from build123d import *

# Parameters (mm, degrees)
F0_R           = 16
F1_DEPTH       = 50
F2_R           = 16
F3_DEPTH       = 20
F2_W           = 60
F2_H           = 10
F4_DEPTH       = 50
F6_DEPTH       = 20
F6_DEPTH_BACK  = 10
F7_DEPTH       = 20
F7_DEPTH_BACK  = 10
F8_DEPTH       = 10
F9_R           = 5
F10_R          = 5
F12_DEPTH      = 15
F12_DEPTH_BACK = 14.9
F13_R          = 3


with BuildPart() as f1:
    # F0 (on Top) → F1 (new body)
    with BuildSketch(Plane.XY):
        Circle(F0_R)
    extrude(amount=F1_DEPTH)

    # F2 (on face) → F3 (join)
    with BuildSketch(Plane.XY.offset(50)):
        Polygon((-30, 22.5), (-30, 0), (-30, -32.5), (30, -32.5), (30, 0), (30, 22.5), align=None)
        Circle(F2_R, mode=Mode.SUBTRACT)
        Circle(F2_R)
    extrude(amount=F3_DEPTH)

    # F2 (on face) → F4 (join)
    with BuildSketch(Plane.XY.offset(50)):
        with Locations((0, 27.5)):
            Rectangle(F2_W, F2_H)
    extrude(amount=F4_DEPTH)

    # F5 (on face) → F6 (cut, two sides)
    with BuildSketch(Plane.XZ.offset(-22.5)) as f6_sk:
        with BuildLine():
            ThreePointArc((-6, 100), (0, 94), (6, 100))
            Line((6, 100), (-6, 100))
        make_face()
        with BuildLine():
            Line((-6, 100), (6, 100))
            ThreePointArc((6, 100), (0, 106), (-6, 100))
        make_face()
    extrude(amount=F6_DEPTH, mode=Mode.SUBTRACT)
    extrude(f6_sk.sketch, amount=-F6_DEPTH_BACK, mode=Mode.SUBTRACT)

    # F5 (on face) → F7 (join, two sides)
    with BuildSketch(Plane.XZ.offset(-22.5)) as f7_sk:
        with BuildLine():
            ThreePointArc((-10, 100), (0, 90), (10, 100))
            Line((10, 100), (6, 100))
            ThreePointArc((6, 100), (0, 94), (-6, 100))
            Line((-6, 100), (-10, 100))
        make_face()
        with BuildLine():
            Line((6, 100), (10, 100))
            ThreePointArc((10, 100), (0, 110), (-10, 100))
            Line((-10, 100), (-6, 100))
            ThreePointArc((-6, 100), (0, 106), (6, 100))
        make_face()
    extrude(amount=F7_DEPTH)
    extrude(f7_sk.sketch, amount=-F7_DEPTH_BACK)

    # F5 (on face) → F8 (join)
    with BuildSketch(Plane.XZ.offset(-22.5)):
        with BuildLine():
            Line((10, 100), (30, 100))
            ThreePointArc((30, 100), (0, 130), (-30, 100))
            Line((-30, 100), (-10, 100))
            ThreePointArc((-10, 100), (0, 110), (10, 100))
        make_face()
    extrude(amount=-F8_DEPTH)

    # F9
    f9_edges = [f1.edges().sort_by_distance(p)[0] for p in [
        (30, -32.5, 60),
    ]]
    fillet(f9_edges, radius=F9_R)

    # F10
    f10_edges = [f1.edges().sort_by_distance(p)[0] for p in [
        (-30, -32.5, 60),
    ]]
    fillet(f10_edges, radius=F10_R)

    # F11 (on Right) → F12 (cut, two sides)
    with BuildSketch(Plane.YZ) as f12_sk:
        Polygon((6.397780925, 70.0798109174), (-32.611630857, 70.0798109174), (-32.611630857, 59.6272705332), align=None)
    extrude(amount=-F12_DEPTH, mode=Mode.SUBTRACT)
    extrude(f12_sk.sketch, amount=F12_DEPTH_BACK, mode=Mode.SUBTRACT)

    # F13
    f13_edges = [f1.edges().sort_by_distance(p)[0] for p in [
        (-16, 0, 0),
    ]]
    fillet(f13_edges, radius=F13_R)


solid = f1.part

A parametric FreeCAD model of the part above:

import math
import FreeCAD as App
import Part
import Sketcher
Q = App.Units.Quantity


def edges_at(feature, points):
    """Names of the edges that pass closest to the given points."""
    edges = feature.Shape.Edges
    near = lambda p: min(range(len(edges)), key=lambda i: edges[i].distToShape(Part.Vertex(*p))[0])
    return sorted({f"Edge{near(p) + 1}" for p in points})

doc = App.newDocument("Part")
params = doc.addObject("Spreadsheet::Sheet", "Params")
for row, (alias, value) in enumerate([
    ("sketch1_diameter", "32 mm"),
    ("pad1_length", "50 mm"),
    ("sketch2_width", "60 mm"),
    ("sketch2_height", "55 mm"),
    ("pad2_length", "20 mm"),
    ("sketch3_width", "60 mm"),
    ("sketch3_height", "10 mm"),
    ("pad3_length", "50 mm"),
    ("sketch4_diameter", "12 mm"),
    ("sketch5_diameter", "20 mm"),
    ("sketch5_diameter2", "12 mm"),
    ("pad4_length", "20 mm"),
    ("pad4_length2", "10 mm"),
    ("sketch6_radius", "30 mm"),
    ("sketch6_radius2", "10 mm"),
    ("pad5_length", "10 mm"),
    ("fillet_radius", "5 mm"),
    ("fillet2_radius", "5 mm"),
    ("pocket2_length", "15 mm"),
    ("pocket2_length2", "14.9 mm"),
    ("fillet3_radius", "3 mm"),
], start=1):
    params.set(f"A{row}", alias)
    params.set(f"B{row}", "=" + value)
    params.setAlias(f"B{row}", alias)

body = doc.addObject("PartDesign::Body", "Body")

# Sketch on XY plane
sketch1 = body.newObject("Sketcher::SketchObject", "Sketch")
sketch1.AttachmentSupport = (doc.getObject("XY_Plane"), [""])
sketch1.MapMode = "FlatFace"
sketch1.addGeometry(Part.Circle(App.Vector(0, 0, 0), App.Vector(0, 0, 1), 16), False)
sketch1.addConstraint([
    Sketcher.Constraint("Coincident", 0, 3, -1, 1),
    Sketcher.Constraint("Diameter", 0, 32.0),
])
sketch1.setExpression("Constraints[1]", "Params.sketch1_diameter")
pad1 = body.newObject("PartDesign::Pad", "Pad")
pad1.Profile = sketch1
pad1.setExpression("Length", "Params.pad1_length")

# Sketch on XY plane
sketch2 = body.newObject("Sketcher::SketchObject", "Sketch001")
sketch2.AttachmentSupport = (doc.getObject("XY_Plane"), [""])
sketch2.MapMode = "FlatFace"
sketch2.AttachmentOffset = App.Placement(App.Vector(0, 0, 50), App.Rotation())
sketch2.addGeometry([
    Part.LineSegment(App.Vector(-30, 22, 0), App.Vector(-30, -32, 0)),
    Part.LineSegment(App.Vector(-30, -32, 0), App.Vector(30, -32, 0)),
    Part.LineSegment(App.Vector(30, -32, 0), App.Vector(30, 22, 0)),
    Part.LineSegment(App.Vector(30, 22, 0), App.Vector(-30, 22, 0)),
], False)
sketch2.addConstraint([
    Sketcher.Constraint("Coincident", 0, 2, 1, 1),
    Sketcher.Constraint("Coincident", 1, 2, 2, 1),
    Sketcher.Constraint("Coincident", 2, 2, 3, 1),
    Sketcher.Constraint("Coincident", 3, 2, 0, 1),
    Sketcher.Constraint("Vertical", 0),
    Sketcher.Constraint("Horizontal", 1),
    Sketcher.Constraint("Vertical", 2),
    Sketcher.Constraint("Horizontal", 3),
    Sketcher.Constraint("DistanceX", 1, 1, 1, 2, 60.0),
    Sketcher.Constraint("DistanceY", 0, 2, 0, 1, 55.0),
    Sketcher.Constraint("DistanceX", 0, 2, -1, 1, 30.0),
    Sketcher.Constraint("DistanceY", 0, 2, -1, 1, 32.5),
])
sketch2.setExpression("Constraints[8]", "Params.sketch2_width")
sketch2.setExpression("Constraints[9]", "Params.sketch2_height")
pad2 = body.newObject("PartDesign::Pad", "Pad001")
pad2.Profile = sketch2
pad2.setExpression("Length", "Params.pad2_length")

# Sketch on XY plane
sketch3 = body.newObject("Sketcher::SketchObject", "Sketch002")
sketch3.AttachmentSupport = (doc.getObject("XY_Plane"), [""])
sketch3.MapMode = "FlatFace"
sketch3.AttachmentOffset = App.Placement(App.Vector(0, 0, 50), App.Rotation())
sketch3.addGeometry([
    Part.LineSegment(App.Vector(-30, 32, 0), App.Vector(-30, 22, 0)),
    Part.LineSegment(App.Vector(-30, 22, 0), App.Vector(30, 22, 0)),
    Part.LineSegment(App.Vector(30, 22, 0), App.Vector(30, 32, 0)),
    Part.LineSegment(App.Vector(30, 32, 0), App.Vector(-30, 32, 0)),
], False)
sketch3.addConstraint([
    Sketcher.Constraint("Coincident", 0, 2, 1, 1),
    Sketcher.Constraint("Coincident", 1, 2, 2, 1),
    Sketcher.Constraint("Coincident", 2, 2, 3, 1),
    Sketcher.Constraint("Coincident", 3, 2, 0, 1),
    Sketcher.Constraint("Vertical", 0),
    Sketcher.Constraint("Horizontal", 1),
    Sketcher.Constraint("Vertical", 2),
    Sketcher.Constraint("Horizontal", 3),
    Sketcher.Constraint("DistanceX", 1, 1, 1, 2, 60.0),
    Sketcher.Constraint("DistanceY", 0, 2, 0, 1, 10.0),
    Sketcher.Constraint("DistanceX", 0, 2, -1, 1, 30.0),
    Sketcher.Constraint("DistanceY", -1, 1, 0, 2, 22.5),
])
sketch3.setExpression("Constraints[8]", "Params.sketch3_width")
sketch3.setExpression("Constraints[9]", "Params.sketch3_height")
pad3 = body.newObject("PartDesign::Pad", "Pad002")
pad3.Profile = sketch3
pad3.setExpression("Length", "Params.pad3_length")

# Sketch on XZ plane
sketch4 = body.newObject("Sketcher::SketchObject", "Sketch003")
sketch4.AttachmentSupport = (doc.getObject("XZ_Plane"), [""])
sketch4.MapMode = "FlatFace"
sketch4.AttachmentOffset = App.Placement(App.Vector(0, 0, -22.5), App.Rotation())
sketch4.addGeometry(Part.Circle(App.Vector(0, 100, 0), App.Vector(0, 0, 1), 6), False)
sketch4.addConstraint([
    Sketcher.Constraint("PointOnObject", 0, 3, -2),
    Sketcher.Constraint("Diameter", 0, 12.0),
    Sketcher.Constraint("DistanceY", -1, 1, 0, 3, 100.0),
])
sketch4.setExpression("Constraints[1]", "Params.sketch4_diameter")
pocket1 = body.newObject("PartDesign::Pocket", "Pocket")
pocket1.Profile = sketch4
pocket1.Type = "ThroughAll"
pocket1.Midplane = True

# Sketch on XZ plane
sketch5 = body.newObject("Sketcher::SketchObject", "Sketch004")
sketch5.AttachmentSupport = (doc.getObject("XZ_Plane"), [""])
sketch5.MapMode = "FlatFace"
sketch5.AttachmentOffset = App.Placement(App.Vector(0, 0, -22.5), App.Rotation())
sketch5.addGeometry([
    Part.Circle(App.Vector(0, 100, 0), App.Vector(0, 0, 1), 10),
    Part.Circle(App.Vector(0, 100, 0), App.Vector(0, 0, 1), 6),
], False)
sketch5.addConstraint([
    Sketcher.Constraint("Coincident", 1, 3, 0, 3),
    Sketcher.Constraint("PointOnObject", 0, 3, -2),
    Sketcher.Constraint("Diameter", 0, 20.0),
    Sketcher.Constraint("Diameter", 1, 12.0),
    Sketcher.Constraint("DistanceY", -1, 1, 0, 3, 100.0),
])
sketch5.setExpression("Constraints[2]", "Params.sketch5_diameter")
sketch5.setExpression("Constraints[3]", "Params.sketch5_diameter2")
pad4 = body.newObject("PartDesign::Pad", "Pad003")
pad4.Profile = sketch5
pad4.Type = "TwoLengths"
pad4.setExpression("Length", "Params.pad4_length")
pad4.setExpression("Length2", "Params.pad4_length2")

# Sketch on XZ plane
sketch6 = body.newObject("Sketcher::SketchObject", "Sketch005")
sketch6.AttachmentSupport = (doc.getObject("XZ_Plane"), [""])
sketch6.MapMode = "FlatFace"
sketch6.AttachmentOffset = App.Placement(App.Vector(0, 0, -22.5), App.Rotation())
sketch6.addGeometry([
    Part.LineSegment(App.Vector(10, 100, 0), App.Vector(30, 100, 0)),
    Part.ArcOfCircle(Part.Circle(App.Vector(0, 100, 0), App.Vector(0, 0, 1), 30), math.radians(0), math.radians(180)),
    Part.LineSegment(App.Vector(-30, 100, 0), App.Vector(-10, 100, 0)),
    Part.ArcOfCircle(Part.Circle(App.Vector(0, 100, 0), App.Vector(0, 0, 1), 10), math.radians(0), math.radians(180)),
], False)
sketch6.addConstraint([
    Sketcher.Constraint("Coincident", 0, 2, 1, 1),
    Sketcher.Constraint("Coincident", 1, 2, 2, 1),
    Sketcher.Constraint("Coincident", 2, 2, 3, 2),
    Sketcher.Constraint("Coincident", 3, 1, 0, 1),
    Sketcher.Constraint("Horizontal", 0),
    Sketcher.Constraint("Horizontal", 2),
    Sketcher.Constraint("Coincident", 3, 3, 1, 3),
    Sketcher.Constraint("Symmetric", 0, 2, 1, 2, -2),
    Sketcher.Constraint("Horizontal", 3, 3, 0, 2),
    Sketcher.Constraint("Radius", 1, 30.0),
    Sketcher.Constraint("Radius", 3, 10.0),
    Sketcher.Constraint("DistanceY", -1, 1, 1, 3, 100.0),
])
sketch6.setExpression("Constraints[9]", "Params.sketch6_radius")
sketch6.setExpression("Constraints[10]", "Params.sketch6_radius2")
pad5 = body.newObject("PartDesign::Pad", "Pad004")
pad5.Profile = sketch6
pad5.setExpression("Length", "Params.pad5_length")
pad5.Reversed = True
doc.recompute()

fillet = body.newObject("PartDesign::Fillet", "Fillet")
fillet.Base = (pad5, edges_at(pad5, [(30, -32.5, 60)]))
fillet.setExpression("Radius", "Params.fillet_radius")
doc.recompute()

fillet2 = body.newObject("PartDesign::Fillet", "Fillet001")
fillet2.Base = (fillet, edges_at(fillet, [(-30, -32.5, 60)]))
fillet2.setExpression("Radius", "Params.fillet2_radius")

# Sketch on YZ plane
sketch7 = body.newObject("Sketcher::SketchObject", "Sketch006")
sketch7.AttachmentSupport = (doc.getObject("YZ_Plane"), [""])
sketch7.MapMode = "FlatFace"
sketch7.addGeometry([
    Part.LineSegment(App.Vector(6, 70, 0), App.Vector(-33, 70, 0)),
    Part.LineSegment(App.Vector(-33, 70, 0), App.Vector(-33, 60, 0)),
    Part.LineSegment(App.Vector(-33, 60, 0), App.Vector(6, 70, 0)),
], False)
sketch7.addConstraint([
    Sketcher.Constraint("Coincident", 0, 2, 1, 1),
    Sketcher.Constraint("Coincident", 1, 2, 2, 1),
    Sketcher.Constraint("Coincident", 2, 2, 0, 1),
    Sketcher.Constraint("Horizontal", 0),
    Sketcher.Constraint("Vertical", 1),
    Sketcher.Constraint("Angle", 2, Q("15 deg")),
    Sketcher.Constraint("DistanceX", 0, 2, 0, 1, 39.009412),
    Sketcher.Constraint("DistanceX", 0, 2, -1, 1, 32.611631),
    Sketcher.Constraint("DistanceY", -1, 1, 0, 2, 70.079811),
])
pocket2 = body.newObject("PartDesign::Pocket", "Pocket001")
pocket2.Profile = sketch7
pocket2.Type = "TwoLengths"
pocket2.setExpression("Length", "Params.pocket2_length")
pocket2.setExpression("Length2", "Params.pocket2_length2")
doc.recompute()

fillet3 = body.newObject("PartDesign::Fillet", "Fillet002")
fillet3.Base = (pocket2, edges_at(pocket2, [(-16, 0, 0)]))
fillet3.setExpression("Radius", "Params.fillet3_radius")

doc.recompute()
